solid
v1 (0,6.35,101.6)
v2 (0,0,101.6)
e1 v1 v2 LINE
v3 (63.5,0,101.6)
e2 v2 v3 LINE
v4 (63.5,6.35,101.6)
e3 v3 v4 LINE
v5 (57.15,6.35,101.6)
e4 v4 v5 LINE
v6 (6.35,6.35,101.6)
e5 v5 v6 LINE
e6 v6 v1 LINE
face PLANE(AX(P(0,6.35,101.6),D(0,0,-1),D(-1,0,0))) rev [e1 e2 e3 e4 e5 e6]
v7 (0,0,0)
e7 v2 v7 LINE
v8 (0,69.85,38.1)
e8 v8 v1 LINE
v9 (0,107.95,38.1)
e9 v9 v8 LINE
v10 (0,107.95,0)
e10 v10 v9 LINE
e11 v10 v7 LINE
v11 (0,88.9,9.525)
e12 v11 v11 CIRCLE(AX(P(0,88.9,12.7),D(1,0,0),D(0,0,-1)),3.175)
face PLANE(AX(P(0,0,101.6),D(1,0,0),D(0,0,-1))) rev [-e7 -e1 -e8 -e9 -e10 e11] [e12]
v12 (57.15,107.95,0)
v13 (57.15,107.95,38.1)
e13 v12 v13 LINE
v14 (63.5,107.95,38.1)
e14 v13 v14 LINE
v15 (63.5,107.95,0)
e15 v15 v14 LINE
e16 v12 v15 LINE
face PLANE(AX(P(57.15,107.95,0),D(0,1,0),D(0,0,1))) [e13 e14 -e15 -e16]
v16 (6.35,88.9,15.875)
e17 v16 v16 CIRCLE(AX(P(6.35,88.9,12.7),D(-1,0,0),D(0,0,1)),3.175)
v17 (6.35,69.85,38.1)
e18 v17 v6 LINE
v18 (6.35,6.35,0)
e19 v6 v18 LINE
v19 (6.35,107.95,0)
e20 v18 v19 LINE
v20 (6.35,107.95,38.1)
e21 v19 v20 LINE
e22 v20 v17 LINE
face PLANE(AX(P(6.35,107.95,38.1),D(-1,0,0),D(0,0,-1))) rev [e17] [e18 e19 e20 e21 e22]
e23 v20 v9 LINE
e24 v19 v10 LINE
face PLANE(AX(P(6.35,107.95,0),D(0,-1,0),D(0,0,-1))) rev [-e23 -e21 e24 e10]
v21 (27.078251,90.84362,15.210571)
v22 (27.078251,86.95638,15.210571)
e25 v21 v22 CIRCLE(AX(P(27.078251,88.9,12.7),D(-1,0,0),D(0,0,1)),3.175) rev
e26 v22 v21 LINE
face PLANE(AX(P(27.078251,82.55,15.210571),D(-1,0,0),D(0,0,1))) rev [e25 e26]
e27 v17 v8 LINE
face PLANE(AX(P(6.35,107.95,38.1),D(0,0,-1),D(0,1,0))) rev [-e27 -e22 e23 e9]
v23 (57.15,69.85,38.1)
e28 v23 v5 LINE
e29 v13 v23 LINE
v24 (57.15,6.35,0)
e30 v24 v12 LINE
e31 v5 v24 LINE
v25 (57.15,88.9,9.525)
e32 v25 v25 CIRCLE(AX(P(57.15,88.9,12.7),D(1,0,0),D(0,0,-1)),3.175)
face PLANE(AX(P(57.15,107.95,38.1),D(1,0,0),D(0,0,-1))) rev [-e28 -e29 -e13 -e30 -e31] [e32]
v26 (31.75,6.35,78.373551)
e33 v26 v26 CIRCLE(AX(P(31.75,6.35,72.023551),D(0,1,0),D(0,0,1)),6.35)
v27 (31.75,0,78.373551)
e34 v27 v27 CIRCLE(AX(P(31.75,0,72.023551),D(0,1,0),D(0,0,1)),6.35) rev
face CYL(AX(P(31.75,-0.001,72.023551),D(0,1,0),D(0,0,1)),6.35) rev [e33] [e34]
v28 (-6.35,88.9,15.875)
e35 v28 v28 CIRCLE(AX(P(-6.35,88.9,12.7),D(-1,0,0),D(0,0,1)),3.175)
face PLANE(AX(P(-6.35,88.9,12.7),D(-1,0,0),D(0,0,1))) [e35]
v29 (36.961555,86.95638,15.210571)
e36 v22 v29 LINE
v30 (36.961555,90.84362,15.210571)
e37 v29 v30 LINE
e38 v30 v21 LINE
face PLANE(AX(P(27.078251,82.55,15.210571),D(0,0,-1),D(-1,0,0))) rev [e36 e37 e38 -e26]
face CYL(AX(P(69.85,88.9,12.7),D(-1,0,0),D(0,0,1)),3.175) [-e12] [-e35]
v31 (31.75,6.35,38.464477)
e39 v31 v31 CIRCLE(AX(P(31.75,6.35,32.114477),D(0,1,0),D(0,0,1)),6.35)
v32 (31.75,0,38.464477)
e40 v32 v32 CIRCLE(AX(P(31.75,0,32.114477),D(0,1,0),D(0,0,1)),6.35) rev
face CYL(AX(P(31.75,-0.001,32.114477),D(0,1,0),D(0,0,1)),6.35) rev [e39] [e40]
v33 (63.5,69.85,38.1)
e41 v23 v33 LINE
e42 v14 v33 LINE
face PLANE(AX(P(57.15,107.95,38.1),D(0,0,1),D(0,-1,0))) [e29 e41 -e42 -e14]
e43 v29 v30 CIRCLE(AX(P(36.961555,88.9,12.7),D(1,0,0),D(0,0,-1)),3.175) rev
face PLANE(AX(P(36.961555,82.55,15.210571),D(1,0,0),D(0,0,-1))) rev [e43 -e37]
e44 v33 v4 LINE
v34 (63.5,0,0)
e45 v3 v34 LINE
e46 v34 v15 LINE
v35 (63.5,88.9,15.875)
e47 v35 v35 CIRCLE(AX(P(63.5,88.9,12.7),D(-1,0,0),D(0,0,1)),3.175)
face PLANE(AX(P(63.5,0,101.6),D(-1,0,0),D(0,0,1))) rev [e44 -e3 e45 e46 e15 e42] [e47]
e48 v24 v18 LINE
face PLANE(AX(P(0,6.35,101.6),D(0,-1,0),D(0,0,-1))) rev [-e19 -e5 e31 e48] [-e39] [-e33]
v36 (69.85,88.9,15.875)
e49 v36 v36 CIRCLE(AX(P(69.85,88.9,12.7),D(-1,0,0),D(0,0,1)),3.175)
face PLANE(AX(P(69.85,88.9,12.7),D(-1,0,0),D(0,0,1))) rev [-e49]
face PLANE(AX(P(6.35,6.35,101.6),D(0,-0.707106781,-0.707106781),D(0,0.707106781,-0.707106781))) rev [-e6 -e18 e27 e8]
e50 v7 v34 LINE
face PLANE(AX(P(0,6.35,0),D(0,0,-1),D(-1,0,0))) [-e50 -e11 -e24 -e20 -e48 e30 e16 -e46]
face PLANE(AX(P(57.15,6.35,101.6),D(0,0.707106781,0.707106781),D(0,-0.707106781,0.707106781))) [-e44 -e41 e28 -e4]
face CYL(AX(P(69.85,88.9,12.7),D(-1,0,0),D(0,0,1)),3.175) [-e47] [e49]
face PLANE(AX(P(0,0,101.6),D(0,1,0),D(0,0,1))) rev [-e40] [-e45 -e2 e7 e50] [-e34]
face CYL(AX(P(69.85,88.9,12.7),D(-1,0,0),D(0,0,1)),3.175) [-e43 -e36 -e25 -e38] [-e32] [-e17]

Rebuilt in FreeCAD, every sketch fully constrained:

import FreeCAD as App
import Part
import Sketcher

V = App.Vector
Q = App.Units.Quantity

doc = App.newDocument("Part")
body = doc.addObject("PartDesign::Body", "Body")

# Sketch on XY plane
sketch1 = doc.addObject("Sketcher::SketchObject", "Sketch")
body.addObject(sketch1)
sketch1.AttachmentSupport = (doc.XY_Plane, [""])
sketch1.MapMode = "FlatFace"
sketch1.addGeometry([
    Part.LineSegment(V(0, 6, 0), V(0, 0, 0)),
    Part.LineSegment(V(0, 0, 0), V(64, 0, 0)),
    Part.LineSegment(V(64, 0, 0), V(64, 6, 0)),
    Part.LineSegment(V(64, 6, 0), V(0, 6, 0)),
], False)
sketch1.addConstraint([
    Sketcher.Constraint("Coincident", 0, 2, 1, 1),
    Sketcher.Constraint("Coincident", 1, 2, 2, 1),
    Sketcher.Constraint("Coincident", 2, 2, 3, 1),
    Sketcher.Constraint("Coincident", 3, 2, 0, 1),
    Sketcher.Constraint("Vertical", 0),
    Sketcher.Constraint("Horizontal", 1),
    Sketcher.Constraint("Vertical", 2),
    Sketcher.Constraint("Horizontal", 3),
    Sketcher.Constraint("Coincident", 0, 2, -1, 1),
    Sketcher.Constraint("DistanceX", 1, 1, 1, 2, Q("2.5 in")),
    Sketcher.Constraint("DistanceY", 0, 2, 0, 1, Q("0.25 in")),
])
pad1 = doc.addObject("PartDesign::Pad", "Pad")
body.addObject(pad1)
pad1.Profile = sketch1
pad1.Length = Q("4 in")

# Sketch on YZ plane
sketch2 = doc.addObject("Sketcher::SketchObject", "Sketch001")
body.addObject(sketch2)
sketch2.AttachmentSupport = (doc.YZ_Plane, [""])
sketch2.MapMode = "FlatFace"
sketch2.AttachmentOffset = App.Placement(V(0, 0, 2.5 * 25.4), App.Rotation())
sketch2.addGeometry([
    Part.LineSegment(V(6, 0, 0), V(108, 0, 0)),  # 0
    Part.LineSegment(V(108, 0, 0), V(108, 38, 0)),  # 1
    Part.LineSegment(V(108, 38, 0), V(70, 38, 0)),  # 2
    Part.LineSegment(V(70, 38, 0), V(6, 102, 0)),  # 3
    Part.LineSegment(V(6, 102, 0), V(6, 0, 0)),  # 4
], False)
sketch2.addConstraint([
    Sketcher.Constraint("Coincident", 0, 2, 1, 1),
    Sketcher.Constraint("Coincident", 1, 2, 2, 1),
    Sketcher.Constraint("Coincident", 2, 2, 3, 1),
    Sketcher.Constraint("Coincident", 3, 2, 4, 1),
    Sketcher.Constraint("Coincident", 4, 2, 0, 1),
    Sketcher.Constraint("Horizontal", 0),
    Sketcher.Constraint("Vertical", 1),
    Sketcher.Constraint("Horizontal", 2),
    Sketcher.Constraint("Vertical", 4),
    Sketcher.Constraint("PointOnObject", 0, 2, -1),
    Sketcher.Constraint("Equal", 2, 1),
    Sketcher.Constraint("Equal", 0, 4),
    Sketcher.Constraint("DistanceX", 0, 1, 0, 2, Q("4 in")),
    Sketcher.Constraint("DistanceX", 2, 2, 2, 1, Q("1.5 in")),
    Sketcher.Constraint("DistanceX", -1, 1, 0, 2, Q("4.25 in")),
])
pad2 = doc.addObject("PartDesign::Pad", "Pad001")
body.addObject(pad2)
pad2.Profile = sketch2
pad2.Length = Q("0.25 in")
pad2.Reversed = True
doc.recompute()

datumplane = doc.addObject("PartDesign::Plane", "DatumPlane")
body.addObject(datumplane)
datumplane.AttachmentSupport = (doc.YZ_Plane, [""])
datumplane.MapMode = "FlatFace"
datumplane.AttachmentOffset = App.Placement(V(0, 0, 1.25 * 25.4), App.Rotation())
mirrored = doc.addObject("PartDesign::Mirrored", "Mirrored")
body.addObject(mirrored)
mirrored.Originals = [pad2]
mirrored.MirrorPlane = (datumplane, [""])
body.Tip = mirrored

# Sketch on YZ plane
sketch3 = doc.addObject("Sketcher::SketchObject", "Sketch002")
body.addObject(sketch3)
sketch3.AttachmentSupport = (doc.YZ_Plane, [""])
sketch3.MapMode = "FlatFace"
sketch3.AttachmentOffset = App.Placement(V(0, 0, 2.25 * 25.4), App.Rotation())
sketch3.addGeometry(Part.Circle(V(88.9, 12.7, 0), V(0, 0, 1), 3.2), False)
sketch3.addConstraint([
    Sketcher.Constraint("Diameter", 0, Q("0.25 in")),
    Sketcher.Constraint("DistanceX", -1, 1, 0, 3, Q("3.5 in")),
    Sketcher.Constraint("DistanceY", -1, 1, 0, 3, Q("0.5 in")),
])
pocket1 = doc.addObject("PartDesign::Pocket", "Pocket")
body.addObject(pocket1)
pocket1.Profile = sketch3
pocket1.Type = "ThroughAll"
pocket1.Midplane = True

# Sketch on YZ plane
sketch4 = doc.addObject("Sketcher::SketchObject", "Sketch003")
body.addObject(sketch4)
sketch4.AttachmentSupport = (doc.YZ_Plane, [""])
sketch4.MapMode = "FlatFace"
sketch4.AttachmentOffset = App.Placement(V(0, 0, 2.25 * 25.4), App.Rotation())
sketch4.addGeometry(Part.Circle(V(88.9, 12.7, 0), V(0, 0, 1), 3.2), False)
sketch4.addConstraint([
    Sketcher.Constraint("Diameter", 0, Q("0.25 in")),
    Sketcher.Constraint("DistanceX", -1, 1, 0, 3, Q("3.5 in")),
    Sketcher.Constraint("DistanceY", -1, 1, 0, 3, Q("0.5 in")),
])
pad3 = doc.addObject("PartDesign::Pad", "Pad002")
body.addObject(pad3)
pad3.Profile = sketch4
pad3.Type = "TwoLengths"
pad3.Length = Q("2.5 in")
pad3.Length2 = Q("0.5 in")
pad3.Reversed = True

# Sketch on XZ plane
sketch5 = doc.addObject("Sketcher::SketchObject", "Sketch004")
body.addObject(sketch5)
sketch5.AttachmentSupport = (doc.XZ_Plane, [""])
sketch5.MapMode = "FlatFace"
sketch5.AttachmentOffset = App.Placement(V(0, 0, -0.25 * 25.4), App.Rotation())
sketch5.addGeometry(Part.Circle(V(32, 72, 0), V(0, 0, 1), 6), False)
sketch5.addConstraint([
    Sketcher.Constraint("Diameter", 0, Q("0.5 in")),
    Sketcher.Constraint("DistanceX", -1, 1, 0, 3, Q("1.25 in")),
    Sketcher.Constraint("DistanceY", -1, 1, 0, 3, 72.023551),
])
pocket2 = doc.addObject("PartDesign::Pocket", "Pocket001")
body.addObject(pocket2)
pocket2.Profile = sketch5
pocket2.Type = "UpToFirst"
pocket2.Reversed = True

# Sketch on XZ plane
sketch6 = doc.addObject("Sketcher::SketchObject", "Sketch005")
body.addObject(sketch6)
sketch6.AttachmentSupport = (doc.XZ_Plane, [""])
sketch6.MapMode = "FlatFace"
sketch6.AttachmentOffset = App.Placement(V(0, 0, -0.25 * 25.4), App.Rotation())
sketch6.addGeometry(Part.Circle(V(32, 32, 0), V(0, 0, 1), 6), False)
sketch6.addConstraint([
    Sketcher.Constraint("Diameter", 0, Q("0.5 in")),
    Sketcher.Constraint("DistanceX", -1, 1, 0, 3, Q("1.25 in")),
    Sketcher.Constraint("DistanceY", -1, 1, 0, 3, 32.114477),
])
pocket3 = doc.addObject("PartDesign::Pocket", "Pocket002")
body.addObject(pocket3)
pocket3.Profile = sketch6
pocket3.Type = "UpToFirst"
pocket3.Reversed = True

# Sketch on XZ plane
sketch7 = doc.addObject("Sketcher::SketchObject", "Sketch006")
body.addObject(sketch7)
sketch7.AttachmentSupport = (doc.XZ_Plane, [""])
sketch7.MapMode = "FlatFace"
sketch7.AttachmentOffset = App.Placement(V(0, 0, -4.25 * 25.4), App.Rotation())
sketch7.addGeometry([
    Part.LineSegment(V(37, 17.3, 0), V(37, 15.2, 0)),
    Part.LineSegment(V(37, 15.2, 0), V(27.1, 15.2, 0)),
    Part.LineSegment(V(27.1, 15.2, 0), V(27.1, 17.3, 0)),
    Part.LineSegment(V(27.1, 17.3, 0), V(37, 17.3, 0)),
], False)
sketch7.addConstraint([
    Sketcher.Constraint("Coincident", 0, 2, 1, 1),
    Sketcher.Constraint("Coincident", 1, 2, 2, 1),
    Sketcher.Constraint("Coincident", 2, 2, 3, 1),
    Sketcher.Constraint("Coincident", 3, 2, 0, 1),
    Sketcher.Constraint("Vertical", 0),
    Sketcher.Constraint("Horizontal", 1),
    Sketcher.Constraint("Vertical", 2),
    Sketcher.Constraint("Horizontal", 3),
    Sketcher.Constraint("DistanceX", 1, 2, 1, 1, 9.883304),
    Sketcher.Constraint("DistanceY", 0, 2, 0, 1, 2.121203),
    Sketcher.Constraint("DistanceY", -1, 1, 0, 2, 15.210571),
    Sketcher.Constraint("DistanceX", -1, 1, 1, 2, 27.078251),
])
pocket4 = doc.addObject("PartDesign::Pocket", "Pocket003")
body.addObject(pocket4)
pocket4.Profile = sketch7
pocket4.Length = Q("1 in")
pocket4.Reversed = True

doc.recompute()
